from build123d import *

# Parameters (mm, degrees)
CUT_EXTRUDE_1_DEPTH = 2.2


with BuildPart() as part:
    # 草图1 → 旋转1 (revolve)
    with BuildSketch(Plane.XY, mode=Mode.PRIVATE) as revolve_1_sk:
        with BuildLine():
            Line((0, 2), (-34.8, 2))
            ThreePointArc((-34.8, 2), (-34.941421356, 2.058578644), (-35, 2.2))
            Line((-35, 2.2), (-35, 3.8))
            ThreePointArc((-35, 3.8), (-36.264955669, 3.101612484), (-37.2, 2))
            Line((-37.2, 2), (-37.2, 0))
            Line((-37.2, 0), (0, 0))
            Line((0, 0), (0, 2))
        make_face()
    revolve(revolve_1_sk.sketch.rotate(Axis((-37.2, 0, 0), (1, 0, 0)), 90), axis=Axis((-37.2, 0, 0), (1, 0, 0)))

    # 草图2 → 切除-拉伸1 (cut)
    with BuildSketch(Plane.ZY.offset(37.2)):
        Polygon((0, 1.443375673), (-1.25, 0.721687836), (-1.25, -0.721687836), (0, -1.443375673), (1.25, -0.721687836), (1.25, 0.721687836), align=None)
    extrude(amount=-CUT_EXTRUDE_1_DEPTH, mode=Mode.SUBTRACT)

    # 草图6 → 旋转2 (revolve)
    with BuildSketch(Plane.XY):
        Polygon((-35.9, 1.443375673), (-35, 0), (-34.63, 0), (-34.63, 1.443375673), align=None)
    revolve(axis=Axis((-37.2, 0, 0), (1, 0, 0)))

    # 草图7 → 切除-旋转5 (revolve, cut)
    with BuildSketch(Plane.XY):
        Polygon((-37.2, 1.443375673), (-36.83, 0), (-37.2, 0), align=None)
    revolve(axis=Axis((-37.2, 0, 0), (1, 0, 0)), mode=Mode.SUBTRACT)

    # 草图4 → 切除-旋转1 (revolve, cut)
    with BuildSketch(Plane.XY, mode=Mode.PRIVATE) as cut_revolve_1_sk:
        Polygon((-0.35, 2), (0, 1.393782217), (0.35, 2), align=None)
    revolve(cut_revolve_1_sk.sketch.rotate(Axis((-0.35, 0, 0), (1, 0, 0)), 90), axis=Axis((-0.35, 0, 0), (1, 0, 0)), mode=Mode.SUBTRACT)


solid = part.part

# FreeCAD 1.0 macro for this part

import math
import FreeCAD as App
import Part
import Sketcher
Q = App.Units.Quantity

doc = App.newDocument("Part")
body = doc.addObject("PartDesign::Body", "Body")

# Sketch on XY plane
sketch1 = body.newObject("Sketcher::SketchObject", "Sketch")
sketch1.AttachmentSupport = (doc.getObject("XY_Plane"), [""])
sketch1.MapMode = "FlatFace"
sketch1.addGeometry([
    Part.LineSegment(App.Vector(0, 2, 0), App.Vector(-34.8, 2, 0)),  # 0
    Part.ArcOfCircle(Part.Circle(App.Vector(-34.8, 2.2, 0), App.Vector(0, 0, 1), 0.2), math.radians(-180), math.radians(-90)),  # 1
    Part.LineSegment(App.Vector(-35, 2.2, 0), App.Vector(-35, 3.8, 0)),  # 2
    Part.ArcOfCircle(Part.Circle(App.Vector(-33.73, 0, 0), App.Vector(0, 0, 1), 4.01), math.radians(109), math.radians(150)),  # 3
    Part.LineSegment(App.Vector(-37.2, 2, 0), App.Vector(-37.2, 0, 0)),  # 4
    Part.LineSegment(App.Vector(-37.2, 0, 0), App.Vector(0, 0, 0)),  # 5
    Part.LineSegment(App.Vector(0, 0, 0), App.Vector(0, 2, 0)),  # 6
], False)
sketch1.addConstraint([
    Sketcher.Constraint("Tangent", 0, 2, 1, 2),
    Sketcher.Constraint("Tangent", 1, 1, 2, 1),
    Sketcher.Constraint("Coincident", 2, 2, 3, 1),
    Sketcher.Constraint("Coincident", 3, 2, 4, 1),
    Sketcher.Constraint("Coincident", 4, 2, 5, 1),
    Sketcher.Constraint("Coincident", 5, 2, 6, 1),
    Sketcher.Constraint("Coincident", 6, 2, 0, 1),
    Sketcher.Constraint("Horizontal", 0),
    Sketcher.Constraint("Vertical", 2),
    Sketcher.Constraint("Vertical", 4),
    Sketcher.Constraint("Horizontal", 5),
    Sketcher.Constraint("Vertical", 6),
    Sketcher.Constraint("Coincident", 5, 2, -1, 1),
    Sketcher.Constraint("PointOnObject", 3, 3, -1),
    Sketcher.Constraint("Horizontal", 0, 2, 3, 2),
    Sketcher.Constraint("Radius", 1, 0.2),
    Sketcher.Constraint("DistanceY", 4, 2, 4, 1, 2.0),
    Sketcher.Constraint("DistanceX", 0, 2, 0, 1, 34.8),
    Sketcher.Constraint("DistanceX", 5, 1, 5, 2, 37.2),
    Sketcher.Constraint("DistanceY", 2, 1, 2, 2, 1.6),
])
revolution = body.newObject("PartDesign::Revolution", "Revolution")
revolution.Profile = sketch1
revolution.ReferenceAxis = (sketch1, ["H_Axis"])
revolution.Angle = 360

# Sketch on YZ plane
sketch2 = body.newObject("Sketcher::SketchObject", "Sketch001")
sketch2.AttachmentSupport = (doc.getObject("YZ_Plane"), [""])
sketch2.MapMode = "FlatFace"
sketch2.AttachmentOffset = App.Placement(App.Vector(0, 0, -37.2), App.Rotation())
sketch2.addGeometry([
    Part.LineSegment(App.Vector(1.4, 0, 0), App.Vector(0.7, -1.2, 0)),  # 0
    Part.LineSegment(App.Vector(0.7, -1.2, 0), App.Vector(-0.7, -1.2, 0)),  # 1
    Part.LineSegment(App.Vector(-0.7, -1.2, 0), App.Vector(-1.4, 0, 0)),  # 2
    Part.LineSegment(App.Vector(-1.4, 0, 0), App.Vector(-0.7, 1.2, 0)),  # 3
    Part.LineSegment(App.Vector(-0.7, 1.2, 0), App.Vector(0.7, 1.2, 0)),  # 4
    Part.LineSegment(App.Vector(0.7, 1.2, 0), App.Vector(1.4, 0, 0)),  # 5
], False)
sketch2.addConstraint([
    Sketcher.Constraint("Coincident", 0, 2, 1, 1),
    Sketcher.Constraint("Coincident", 1, 2, 2, 1),
    Sketcher.Constraint("Coincident", 2, 2, 3, 1),
    Sketcher.Constraint("Coincident", 3, 2, 4, 1),
    Sketcher.Constraint("Coincident", 4, 2, 5, 1),
    Sketcher.Constraint("Coincident", 5, 2, 0, 1),
    Sketcher.Constraint("Horizontal", 1),
    Sketcher.Constraint("Horizontal", 4),
    Sketcher.Constraint("Symmetric", 0, 2, 3, 2, -1, 1),
    Sketcher.Constraint("Symmetric", 2, 2, 5, 2, -1, 1),
    Sketcher.Constraint("PointOnObject", 2, 2, -1),
    Sketcher.Constraint("Parallel", 2, 5),
    Sketcher.Constraint("Vertical", 1, 2, 3, 2),
    Sketcher.Constraint("Angle", 0, Q("-120 deg")),
    Sketcher.Constraint("DistanceY", 1, 2, 3, 2, 2.5),
    Sketcher.Constraint("DistanceX", 1, 2, 1, 1, 1.443376),
])
pocket1 = body.newObject("PartDesign::Pocket", "Pocket")
pocket1.Profile = sketch2
pocket1.Length = 2.2
pocket1.Reversed = True

# Sketch on XY plane
sketch3 = body.newObject("Sketcher::SketchObject", "Sketch002")
sketch3.AttachmentSupport = (doc.getObject("XY_Plane"), [""])
sketch3.MapMode = "FlatFace"
sketch3.addGeometry([
    Part.LineSegment(App.Vector(-35.9, 1.44, 0), App.Vector(-35, 0, 0)),
    Part.LineSegment(App.Vector(-35, 0, 0), App.Vector(-34.63, 0, 0)),
    Part.LineSegment(App.Vector(-34.63, 0, 0), App.Vector(-34.63, 1.44, 0)),
    Part.LineSegment(App.Vector(-34.63, 1.44, 0), App.Vector(-35.9, 1.44, 0)),
], False)
sketch3.addConstraint([
    Sketcher.Constraint("Coincident", 0, 2, 1, 1),
    Sketcher.Constraint("Coincident", 1, 2, 2, 1),
    Sketcher.Constraint("Coincident", 2, 2, 3, 1),
    Sketcher.Constraint("Coincident", 3, 2, 0, 1),
    Sketcher.Constraint("Horizontal", 1),
    Sketcher.Constraint("Vertical", 2),
    Sketcher.Constraint("Horizontal", 3),
    Sketcher.Constraint("PointOnObject", 0, 2, -1),
    Sketcher.Constraint("DistanceX", 0, 2, -1, 1, 35.0),
    Sketcher.Constraint("DistanceX", 1, 1, 1, 2, 0.37),
    Sketcher.Constraint("DistanceX", 3, 2, 3, 1, 1.27),
    Sketcher.Constraint("Distance", 0, 1.70098),
])
revolution2 = body.newObject("PartDesign::Revolution", "Revolution001")
revolution2.Profile = sketch3
revolution2.ReferenceAxis = (sketch3, ["H_Axis"])
revolution2.Angle = 360

# Sketch on XY plane
sketch4 = body.newObject("Sketcher::SketchObject", "Sketch003")
sketch4.AttachmentSupport = (doc.getObject("XY_Plane"), [""])
sketch4.MapMode = "FlatFace"
sketch4.addGeometry([
    Part.LineSegment(App.Vector(-36.83, 0, 0), App.Vector(-37.2, 1.44, 0)),
    Part.LineSegment(App.Vector(-37.2, 1.44, 0), App.Vector(-37.2, 0, 0)),
    Part.LineSegment(App.Vector(-37.2, 0, 0), App.Vector(-36.83, 0, 0)),
], False)
sketch4.addConstraint([
    Sketcher.Constraint("Coincident", 0, 2, 1, 1),
    Sketcher.Constraint("Coincident", 1, 2, 2, 1),
    Sketcher.Constraint("Coincident", 2, 2, 0, 1),
    Sketcher.Constraint("Vertical", 1),
    Sketcher.Constraint("Horizontal", 2),
    Sketcher.Constraint("PointOnObject", 1, 2, -1),
    Sketcher.Constraint("DistanceX", 2, 1, 2, 2, 0.37),
    Sketcher.Constraint("DistanceX", 0, 2, -1, 1, 37.2),
    Sketcher.Constraint("DistanceY", 1, 2, 1, 1, 1.443376),
])
groove = body.newObject("PartDesign::Groove", "Groove")
groove.Profile = sketch4
groove.ReferenceAxis = (sketch4, ["H_Axis"])
groove.Angle = 360

# Sketch on XY plane
sketch5 = body.newObject("Sketcher::SketchObject", "Sketch004")
sketch5.AttachmentSupport = (doc.getObject("XY_Plane"), [""])
sketch5.MapMode = "FlatFace"
sketch5.addGeometry([
    Part.LineSegment(App.Vector(-0.3, 2, 0), App.Vector(0, 1.4, 0)),
    Part.LineSegment(App.Vector(0, 1.4, 0), App.Vector(0.3, 2, 0)),
    Part.LineSegment(App.Vector(0.3, 2, 0), App.Vector(-0.3, 2, 0)),
], False)
sketch5.addConstraint([
    Sketcher.Constraint("Coincident", 0, 2, 1, 1),
    Sketcher.Constraint("Coincident", 1, 2, 2, 1),
    Sketcher.Constraint("Coincident", 2, 2, 0, 1),
    Sketcher.Constraint("Horizontal", 2),
    Sketcher.Constraint("PointOnObject", 0, 2, -2),
    Sketcher.Constraint("Equal", 0, 1),
    Sketcher.Constraint("Angle", 0, Q("-60 deg")),
    Sketcher.Constraint("DistanceX", 2, 2, 2, 1, 0.7),
    Sketcher.Constraint("DistanceY", -1, 1, 1, 2, 2.0),
])
groove2 = body.newObject("PartDesign::Groove", "Groove001")
groove2.Profile = sketch5
groove2.ReferenceAxis = (sketch5, ["H_Axis"])
groove2.Angle = 360

doc.recompute()
